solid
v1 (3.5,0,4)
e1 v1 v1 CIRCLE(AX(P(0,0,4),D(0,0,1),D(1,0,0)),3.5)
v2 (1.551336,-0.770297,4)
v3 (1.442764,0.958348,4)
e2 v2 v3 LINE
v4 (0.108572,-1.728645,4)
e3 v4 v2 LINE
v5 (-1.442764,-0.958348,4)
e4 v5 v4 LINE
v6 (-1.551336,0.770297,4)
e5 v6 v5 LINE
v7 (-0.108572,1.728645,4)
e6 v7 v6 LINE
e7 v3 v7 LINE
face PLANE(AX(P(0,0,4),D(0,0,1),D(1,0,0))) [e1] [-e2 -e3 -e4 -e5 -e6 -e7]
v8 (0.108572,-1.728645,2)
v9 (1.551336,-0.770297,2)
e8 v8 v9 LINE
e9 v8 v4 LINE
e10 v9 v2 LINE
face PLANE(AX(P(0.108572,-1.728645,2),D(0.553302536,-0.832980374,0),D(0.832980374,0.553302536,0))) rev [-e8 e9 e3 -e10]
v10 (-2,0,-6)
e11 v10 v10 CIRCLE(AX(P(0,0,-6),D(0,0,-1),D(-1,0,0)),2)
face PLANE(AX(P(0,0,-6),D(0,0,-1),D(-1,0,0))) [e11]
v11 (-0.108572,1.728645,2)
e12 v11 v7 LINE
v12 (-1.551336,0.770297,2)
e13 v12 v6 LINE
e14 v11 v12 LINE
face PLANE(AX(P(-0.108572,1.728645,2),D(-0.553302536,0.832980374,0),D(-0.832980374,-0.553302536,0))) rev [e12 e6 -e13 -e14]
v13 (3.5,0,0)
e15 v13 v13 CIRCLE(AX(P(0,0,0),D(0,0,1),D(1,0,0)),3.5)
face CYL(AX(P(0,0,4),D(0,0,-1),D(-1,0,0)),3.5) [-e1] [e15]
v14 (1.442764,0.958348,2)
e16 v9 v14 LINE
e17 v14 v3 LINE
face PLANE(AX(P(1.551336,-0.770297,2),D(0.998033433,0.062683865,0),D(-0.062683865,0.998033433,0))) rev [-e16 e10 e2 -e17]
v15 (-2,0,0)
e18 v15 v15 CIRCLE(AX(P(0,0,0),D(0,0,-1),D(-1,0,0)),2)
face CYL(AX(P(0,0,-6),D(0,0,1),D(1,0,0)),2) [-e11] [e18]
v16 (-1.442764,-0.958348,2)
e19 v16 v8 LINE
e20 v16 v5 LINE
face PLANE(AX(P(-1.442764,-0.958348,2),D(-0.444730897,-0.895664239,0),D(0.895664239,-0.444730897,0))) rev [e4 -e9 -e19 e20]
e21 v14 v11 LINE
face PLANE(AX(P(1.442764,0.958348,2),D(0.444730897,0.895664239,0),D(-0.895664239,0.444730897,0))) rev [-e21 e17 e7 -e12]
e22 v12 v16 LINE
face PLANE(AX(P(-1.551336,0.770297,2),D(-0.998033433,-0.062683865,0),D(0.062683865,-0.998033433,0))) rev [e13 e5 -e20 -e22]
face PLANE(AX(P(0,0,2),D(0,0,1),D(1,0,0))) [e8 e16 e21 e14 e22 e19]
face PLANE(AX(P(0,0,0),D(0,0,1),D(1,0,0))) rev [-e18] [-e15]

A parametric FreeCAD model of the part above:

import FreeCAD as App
import Part
import Sketcher
from FreeCAD import Vector
Q = App.Units.Quantity

doc = App.newDocument("Part")
body = doc.addObject("PartDesign::Body", "Body")

# Sketch on XY plane
sketch1 = body.newObject("Sketcher::SketchObject", "Sketch")
sketch1.AttachmentSupport = (doc.getObject("XY_Plane"), [""])
sketch1.MapMode = "FlatFace"
sketch1.addGeometry(Part.Circle(Vector(0, 0, 0), Vector(0, 0, 1), 3.5), False)
sketch1.addConstraint([
    Sketcher.Constraint("Coincident", 0, 3, -1, 1),
    Sketcher.Constraint("Diameter", 0, Q("7 mm")),
])
pad1 = body.newObject("PartDesign::Pad", "Pad")
pad1.Profile = sketch1
pad1.Length = 4

# Sketch on XY plane
sketch2 = body.newObject("Sketcher::SketchObject", "Sketch001")
sketch2.AttachmentSupport = (doc.getObject("XY_Plane"), [""])
sketch2.MapMode = "FlatFace"
sketch2.AttachmentOffset = App.Placement(Vector(0, 0, 4), App.Rotation())
sketch2.addGeometry([
    Part.LineSegment(Vector(1.6, -0.8, 0), Vector(1.4, 1, 0)),  # 0
    Part.LineSegment(Vector(1.4, 1, 0), Vector(-0.1, 1.7, 0)),  # 1
    Part.LineSegment(Vector(-0.1, 1.7, 0), Vector(-1.6, 0.8, 0)),  # 2
    Part.LineSegment(Vector(-1.6, 0.8, 0), Vector(-1.4, -1, 0)),  # 3
    Part.LineSegment(Vector(-1.4, -1, 0), Vector(0.1, -1.7, 0)),  # 4
    Part.LineSegment(Vector(0.1, -1.7, 0), Vector(1.6, -0.8, 0)),  # 5
], False)
sketch2.addConstraint([
    Sketcher.Constraint("Coincident", 0, 2, 1, 1),
    Sketcher.Constraint("Coincident", 1, 2, 2, 1),
    Sketcher.Constraint("Coincident", 2, 2, 3, 1),
    Sketcher.Constraint("Coincident", 3, 2, 4, 1),
    Sketcher.Constraint("Coincident", 4, 2, 5, 1),
    Sketcher.Constraint("Coincident", 5, 2, 0, 1),
    Sketcher.Constraint("Symmetric", 0, 2, 3, 2, -1, 1),
    Sketcher.Constraint("Symmetric", 1, 2, 4, 2, -1, 1),
    Sketcher.Constraint("Symmetric", 2, 2, 5, 2, -1, 1),
    Sketcher.Constraint("Equal", 0, 1),
    Sketcher.Constraint("Equal", 1, 2),
    Sketcher.Constraint("DistanceX", 2, 2, 0, 2, Q("2.9941 mm")),
    Sketcher.Constraint("Distance", 0, Q("1.732051 mm")),
    Sketcher.Constraint("DistanceY", -1, 1, 0, 2, Q("0.958348 mm")),
    Sketcher.Constraint("DistanceX", 1, 2, -1, 1, Q("0.108572 mm")),
])
pocket1 = body.newObject("PartDesign::Pocket", "Pocket")
pocket1.Profile = sketch2
pocket1.Length = 2

# Sketch on XY plane
sketch3 = body.newObject("Sketcher::SketchObject", "Sketch002")
sketch3.AttachmentSupport = (doc.getObject("XY_Plane"), [""])
sketch3.MapMode = "FlatFace"
sketch3.addGeometry(Part.Circle(Vector(0, 0, 0), Vector(0, 0, 1), 2), False)
sketch3.addConstraint([
    Sketcher.Constraint("Coincident", 0, 3, -1, 1),
    Sketcher.Constraint("Diameter", 0, Q("4 mm")),
])
pad2 = body.newObject("PartDesign::Pad", "Pad001")
pad2.Profile = sketch3
pad2.Length = 6
pad2.Reversed = True

doc.recompute()
